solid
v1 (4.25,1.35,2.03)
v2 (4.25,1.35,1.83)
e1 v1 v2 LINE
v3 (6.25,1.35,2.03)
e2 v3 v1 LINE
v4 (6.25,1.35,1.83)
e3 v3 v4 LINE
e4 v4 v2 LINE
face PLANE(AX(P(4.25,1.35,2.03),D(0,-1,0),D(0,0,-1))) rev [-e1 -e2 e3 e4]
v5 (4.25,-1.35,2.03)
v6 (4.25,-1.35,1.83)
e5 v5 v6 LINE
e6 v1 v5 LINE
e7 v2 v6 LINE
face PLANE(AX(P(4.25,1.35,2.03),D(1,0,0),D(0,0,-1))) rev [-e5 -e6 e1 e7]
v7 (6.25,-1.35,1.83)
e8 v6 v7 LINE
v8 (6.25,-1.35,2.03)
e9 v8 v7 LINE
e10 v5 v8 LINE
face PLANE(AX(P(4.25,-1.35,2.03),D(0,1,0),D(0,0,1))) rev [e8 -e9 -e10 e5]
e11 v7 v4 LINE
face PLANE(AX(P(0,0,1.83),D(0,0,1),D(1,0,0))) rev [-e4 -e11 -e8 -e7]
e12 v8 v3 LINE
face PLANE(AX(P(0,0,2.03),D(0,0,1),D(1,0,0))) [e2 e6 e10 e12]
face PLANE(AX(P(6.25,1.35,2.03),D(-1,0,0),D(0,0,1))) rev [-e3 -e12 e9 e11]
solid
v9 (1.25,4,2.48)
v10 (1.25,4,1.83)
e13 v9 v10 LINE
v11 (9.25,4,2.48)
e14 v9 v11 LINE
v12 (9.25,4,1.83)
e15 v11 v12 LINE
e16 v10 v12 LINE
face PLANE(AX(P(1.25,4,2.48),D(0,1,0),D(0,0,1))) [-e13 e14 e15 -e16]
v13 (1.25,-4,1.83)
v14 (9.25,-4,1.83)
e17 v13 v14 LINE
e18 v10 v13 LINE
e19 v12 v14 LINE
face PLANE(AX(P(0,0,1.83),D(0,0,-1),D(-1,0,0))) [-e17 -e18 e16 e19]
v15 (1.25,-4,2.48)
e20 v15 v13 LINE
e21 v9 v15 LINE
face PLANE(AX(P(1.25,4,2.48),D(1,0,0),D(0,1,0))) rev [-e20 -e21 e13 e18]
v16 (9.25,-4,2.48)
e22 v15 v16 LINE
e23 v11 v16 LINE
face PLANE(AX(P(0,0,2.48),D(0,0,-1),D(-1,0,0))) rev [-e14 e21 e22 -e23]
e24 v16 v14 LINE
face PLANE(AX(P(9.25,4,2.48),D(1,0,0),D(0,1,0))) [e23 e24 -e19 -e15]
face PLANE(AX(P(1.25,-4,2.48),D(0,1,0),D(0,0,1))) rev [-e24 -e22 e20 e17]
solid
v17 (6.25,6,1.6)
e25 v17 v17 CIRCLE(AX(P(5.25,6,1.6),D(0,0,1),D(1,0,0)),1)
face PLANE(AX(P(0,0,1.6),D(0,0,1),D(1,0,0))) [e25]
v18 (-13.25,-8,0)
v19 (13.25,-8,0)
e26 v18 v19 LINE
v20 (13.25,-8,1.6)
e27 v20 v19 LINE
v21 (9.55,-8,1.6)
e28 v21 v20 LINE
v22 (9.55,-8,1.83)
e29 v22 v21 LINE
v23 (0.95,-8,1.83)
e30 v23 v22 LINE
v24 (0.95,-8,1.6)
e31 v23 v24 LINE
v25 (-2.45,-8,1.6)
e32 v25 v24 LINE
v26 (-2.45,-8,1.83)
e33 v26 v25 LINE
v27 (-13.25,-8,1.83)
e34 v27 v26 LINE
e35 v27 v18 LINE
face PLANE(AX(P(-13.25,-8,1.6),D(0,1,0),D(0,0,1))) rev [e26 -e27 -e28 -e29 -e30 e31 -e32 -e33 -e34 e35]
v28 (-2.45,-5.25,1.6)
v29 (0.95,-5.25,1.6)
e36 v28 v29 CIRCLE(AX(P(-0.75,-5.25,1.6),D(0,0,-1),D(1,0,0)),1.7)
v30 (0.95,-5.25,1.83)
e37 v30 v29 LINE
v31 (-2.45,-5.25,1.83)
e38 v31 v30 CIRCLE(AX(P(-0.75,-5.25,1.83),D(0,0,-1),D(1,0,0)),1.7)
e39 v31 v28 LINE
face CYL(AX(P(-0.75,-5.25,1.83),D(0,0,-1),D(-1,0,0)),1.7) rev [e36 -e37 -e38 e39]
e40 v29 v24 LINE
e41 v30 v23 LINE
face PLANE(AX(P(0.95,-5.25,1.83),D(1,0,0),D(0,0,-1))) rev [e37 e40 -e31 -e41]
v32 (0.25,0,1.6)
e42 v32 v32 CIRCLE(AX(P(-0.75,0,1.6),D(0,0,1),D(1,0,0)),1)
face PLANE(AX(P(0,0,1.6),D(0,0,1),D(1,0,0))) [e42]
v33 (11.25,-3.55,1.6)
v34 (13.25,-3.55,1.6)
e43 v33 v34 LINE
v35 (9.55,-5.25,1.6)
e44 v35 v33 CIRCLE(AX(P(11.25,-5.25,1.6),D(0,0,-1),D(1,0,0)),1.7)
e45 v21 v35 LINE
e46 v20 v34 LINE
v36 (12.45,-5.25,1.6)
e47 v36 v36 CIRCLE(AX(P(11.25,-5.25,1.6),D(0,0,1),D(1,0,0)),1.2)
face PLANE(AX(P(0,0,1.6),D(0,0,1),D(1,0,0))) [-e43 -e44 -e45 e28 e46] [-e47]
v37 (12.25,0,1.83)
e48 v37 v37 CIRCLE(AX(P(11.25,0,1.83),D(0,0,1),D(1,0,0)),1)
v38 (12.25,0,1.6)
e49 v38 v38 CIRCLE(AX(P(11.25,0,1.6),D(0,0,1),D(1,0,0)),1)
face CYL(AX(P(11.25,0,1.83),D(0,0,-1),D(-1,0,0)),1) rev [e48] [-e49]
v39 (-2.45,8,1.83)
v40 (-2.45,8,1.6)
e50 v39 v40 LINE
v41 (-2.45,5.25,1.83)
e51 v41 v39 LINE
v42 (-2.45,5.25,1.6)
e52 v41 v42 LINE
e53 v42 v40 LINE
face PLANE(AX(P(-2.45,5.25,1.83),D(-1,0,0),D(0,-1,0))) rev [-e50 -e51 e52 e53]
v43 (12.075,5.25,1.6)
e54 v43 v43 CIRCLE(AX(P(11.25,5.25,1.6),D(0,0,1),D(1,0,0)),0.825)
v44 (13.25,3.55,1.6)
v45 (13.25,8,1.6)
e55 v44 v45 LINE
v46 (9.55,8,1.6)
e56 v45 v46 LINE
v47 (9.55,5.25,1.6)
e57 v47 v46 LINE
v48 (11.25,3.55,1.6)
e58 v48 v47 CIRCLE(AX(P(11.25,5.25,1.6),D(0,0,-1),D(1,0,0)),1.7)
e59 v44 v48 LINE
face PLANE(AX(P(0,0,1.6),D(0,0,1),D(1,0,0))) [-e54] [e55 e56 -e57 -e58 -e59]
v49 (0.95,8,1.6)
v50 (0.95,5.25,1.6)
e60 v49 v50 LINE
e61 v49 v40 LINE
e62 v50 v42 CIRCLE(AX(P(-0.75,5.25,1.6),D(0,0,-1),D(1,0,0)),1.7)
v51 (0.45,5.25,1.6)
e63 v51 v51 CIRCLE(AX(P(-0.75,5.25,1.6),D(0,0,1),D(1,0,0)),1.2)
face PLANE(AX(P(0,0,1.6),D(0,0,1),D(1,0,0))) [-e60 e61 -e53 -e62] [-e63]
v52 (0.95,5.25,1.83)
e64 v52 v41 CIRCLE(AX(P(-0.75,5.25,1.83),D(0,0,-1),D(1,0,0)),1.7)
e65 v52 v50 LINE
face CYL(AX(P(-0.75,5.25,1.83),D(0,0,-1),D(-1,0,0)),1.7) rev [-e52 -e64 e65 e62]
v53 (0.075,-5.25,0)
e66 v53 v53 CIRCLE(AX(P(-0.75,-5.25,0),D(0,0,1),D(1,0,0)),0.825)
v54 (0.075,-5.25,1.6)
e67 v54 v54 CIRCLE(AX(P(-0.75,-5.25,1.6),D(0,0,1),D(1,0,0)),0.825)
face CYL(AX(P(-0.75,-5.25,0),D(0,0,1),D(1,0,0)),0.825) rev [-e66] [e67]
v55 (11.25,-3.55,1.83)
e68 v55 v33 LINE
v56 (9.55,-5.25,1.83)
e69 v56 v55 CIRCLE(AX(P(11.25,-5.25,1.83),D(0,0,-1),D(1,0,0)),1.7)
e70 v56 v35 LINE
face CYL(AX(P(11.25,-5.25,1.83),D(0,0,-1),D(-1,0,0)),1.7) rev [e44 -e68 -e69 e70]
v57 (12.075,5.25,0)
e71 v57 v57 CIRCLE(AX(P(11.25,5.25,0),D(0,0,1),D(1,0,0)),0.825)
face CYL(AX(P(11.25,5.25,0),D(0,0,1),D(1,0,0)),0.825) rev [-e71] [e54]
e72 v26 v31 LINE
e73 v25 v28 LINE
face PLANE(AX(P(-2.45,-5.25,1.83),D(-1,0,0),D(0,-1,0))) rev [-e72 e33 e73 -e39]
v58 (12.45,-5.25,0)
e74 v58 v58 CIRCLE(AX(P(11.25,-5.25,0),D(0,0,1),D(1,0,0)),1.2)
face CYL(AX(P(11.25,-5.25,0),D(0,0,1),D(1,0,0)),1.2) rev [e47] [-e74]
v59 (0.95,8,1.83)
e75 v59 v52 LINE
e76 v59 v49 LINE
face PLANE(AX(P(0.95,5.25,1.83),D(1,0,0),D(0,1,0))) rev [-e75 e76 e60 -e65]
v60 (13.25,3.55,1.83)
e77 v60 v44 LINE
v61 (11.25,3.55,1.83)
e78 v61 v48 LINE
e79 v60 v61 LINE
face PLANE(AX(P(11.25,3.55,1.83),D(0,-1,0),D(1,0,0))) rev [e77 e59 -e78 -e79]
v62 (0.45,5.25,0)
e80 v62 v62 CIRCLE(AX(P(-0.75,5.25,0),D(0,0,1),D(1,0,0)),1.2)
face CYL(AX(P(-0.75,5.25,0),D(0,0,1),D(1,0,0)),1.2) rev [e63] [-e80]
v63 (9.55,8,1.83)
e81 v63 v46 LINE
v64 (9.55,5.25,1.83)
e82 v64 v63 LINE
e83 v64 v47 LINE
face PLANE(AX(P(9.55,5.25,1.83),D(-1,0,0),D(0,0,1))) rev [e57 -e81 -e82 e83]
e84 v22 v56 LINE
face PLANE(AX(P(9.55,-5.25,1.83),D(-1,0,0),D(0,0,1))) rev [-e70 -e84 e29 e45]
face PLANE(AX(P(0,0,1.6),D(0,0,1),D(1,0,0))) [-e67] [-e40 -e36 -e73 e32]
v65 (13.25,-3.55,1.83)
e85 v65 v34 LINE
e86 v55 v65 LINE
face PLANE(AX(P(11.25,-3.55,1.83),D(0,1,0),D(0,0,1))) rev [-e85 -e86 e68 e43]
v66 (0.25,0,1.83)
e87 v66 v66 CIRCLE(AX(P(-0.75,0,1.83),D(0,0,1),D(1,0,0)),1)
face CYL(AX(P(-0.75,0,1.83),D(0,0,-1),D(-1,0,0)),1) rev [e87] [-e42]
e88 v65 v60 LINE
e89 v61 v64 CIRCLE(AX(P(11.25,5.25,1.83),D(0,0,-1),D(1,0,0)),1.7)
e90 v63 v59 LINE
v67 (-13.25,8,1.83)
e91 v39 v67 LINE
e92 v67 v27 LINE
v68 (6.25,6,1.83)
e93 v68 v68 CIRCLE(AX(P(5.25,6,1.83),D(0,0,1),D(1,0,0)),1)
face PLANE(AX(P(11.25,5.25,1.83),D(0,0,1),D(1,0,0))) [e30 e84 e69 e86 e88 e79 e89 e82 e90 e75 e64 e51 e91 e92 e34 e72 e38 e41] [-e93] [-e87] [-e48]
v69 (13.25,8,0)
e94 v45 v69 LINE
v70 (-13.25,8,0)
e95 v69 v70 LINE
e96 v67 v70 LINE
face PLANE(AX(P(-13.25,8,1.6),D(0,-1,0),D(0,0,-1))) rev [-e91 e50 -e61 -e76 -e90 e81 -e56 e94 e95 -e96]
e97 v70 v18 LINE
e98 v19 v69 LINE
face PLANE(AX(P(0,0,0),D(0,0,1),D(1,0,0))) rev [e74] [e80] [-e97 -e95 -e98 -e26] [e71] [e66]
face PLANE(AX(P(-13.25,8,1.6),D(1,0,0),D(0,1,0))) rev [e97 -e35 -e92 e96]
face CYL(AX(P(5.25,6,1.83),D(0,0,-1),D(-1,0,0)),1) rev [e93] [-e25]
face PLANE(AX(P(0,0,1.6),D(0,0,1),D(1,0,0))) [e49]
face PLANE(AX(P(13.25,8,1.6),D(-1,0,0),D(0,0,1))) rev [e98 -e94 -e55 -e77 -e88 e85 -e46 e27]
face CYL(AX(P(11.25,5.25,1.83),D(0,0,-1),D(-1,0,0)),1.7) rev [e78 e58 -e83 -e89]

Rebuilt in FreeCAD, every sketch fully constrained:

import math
import FreeCAD as App
import Part
import Sketcher
from FreeCAD import Vector


def add_polygon(sketch, points):
    """Adds a closed chain of lines whose ends are joined by coincident constraints."""
    first, n = sketch.GeometryCount, len(points)
    for a, b in zip(points, points[1:] + points[:1]):
        sketch.addGeometry(Part.LineSegment(App.Vector(*a, 0), App.Vector(*b, 0)), False)
    for i in range(n):
        sketch.addConstraint(Sketcher.Constraint("Coincident", first + i, 2, first + (i + 1) % n, 1))

doc = App.newDocument("Part")
body = doc.addObject("PartDesign::Body", "Body")

# Sketch on XY plane
sketch1 = body.newObject("Sketcher::SketchObject", "Sketch")
sketch1.AttachmentSupport = (doc.getObject("XY_Plane"), [""])
sketch1.MapMode = "FlatFace"
add_polygon(sketch1, [(-13, 8), (-13, -8), (13, -8), (13, 8)])  # lines 0-3
sketch1.addConstraint([
    Sketcher.Constraint("Vertical", 0),
    Sketcher.Constraint("Horizontal", 1),
    Sketcher.Constraint("Vertical", 2),
    Sketcher.Constraint("Horizontal", 3),
    Sketcher.Constraint("Symmetric", 0, 2, 2, 2, -1, 1),
    Sketcher.Constraint("DistanceY", 0, 2, 0, 1, 16.0),
    Sketcher.Constraint("DistanceX", 1, 1, 1, 2, 26.5),
])
pad1 = body.newObject("PartDesign::Pad", "Pad")
pad1.Profile = sketch1
pad1.Length = 1.6

# Sketch on XY plane
sketch2 = body.newObject("Sketcher::SketchObject", "Sketch001")
sketch2.AttachmentSupport = (doc.getObject("XY_Plane"), [""])
sketch2.MapMode = "FlatFace"
sketch2.AttachmentOffset = App.Placement(Vector(0, 0, 1.6), App.Rotation())
sketch2.addGeometry([
    Part.Circle(Vector(-0.8, 5.2, 0), Vector(0, 0, 1), 1.2),
    Part.Circle(Vector(11.2, 5.2, 0), Vector(0, 0, 1), 0.8),
    Part.Circle(Vector(11.2, -5.2, 0), Vector(0, 0, 1), 1.2),
    Part.Circle(Vector(-0.8, -5.2, 0), Vector(0, 0, 1), 0.8),
], False)
sketch2.addConstraint([
    Sketcher.Constraint("Equal", 0, 2),
    Sketcher.Constraint("Equal", 1, 3),
    Sketcher.Constraint("Symmetric", 1, 3, 2, 3, -1),
    Sketcher.Constraint("Symmetric", 0, 3, 3, 3, -1),
    Sketcher.Constraint("Horizontal", 0, 3, 1, 3),
    Sketcher.Constraint("Diameter", 0, 2.4),
    Sketcher.Constraint("Diameter", 1, 1.65),
    Sketcher.Constraint("DistanceX", 0, 3, 1, 3, 12.0),
    Sketcher.Constraint("DistanceY", 2, 3, 1, 3, 10.5),
    Sketcher.Constraint("DistanceX", 0, 3, -1, 1, 0.75),
])
pocket1 = body.newObject("PartDesign::Pocket", "Pocket")
pocket1.Profile = sketch2
pocket1.Type = "ThroughAll"

# Sketch on XY plane
sketch3 = body.newObject("Sketcher::SketchObject", "Sketch002")
sketch3.AttachmentSupport = (doc.getObject("XY_Plane"), [""])
sketch3.MapMode = "FlatFace"
sketch3.AttachmentOffset = App.Placement(Vector(0, 0, 1.6), App.Rotation())
sketch3.addGeometry([
    Part.LineSegment(Vector(13.2, 3.5, 0), Vector(11.2, 3.5, 0)),  # 0
    Part.ArcOfCircle(Part.Circle(Vector(11.2, 5.2, 0), Vector(0, 0, 1), 1.7), math.radians(180), math.radians(270)),  # 1
    Part.LineSegment(Vector(9.6, 5.2, 0), Vector(9.6, 8, 0)),  # 2
    Part.LineSegment(Vector(9.6, 8, 0), Vector(0.9, 8, 0)),  # 3
    Part.LineSegment(Vector(0.9, 8, 0), Vector(0.9, 5.2, 0)),  # 4
    Part.ArcOfCircle(Part.Circle(Vector(-0.8, 5.2, 0), Vector(0, 0, 1), 1.7), math.radians(180), math.radians(360)),  # 5
    Part.LineSegment(Vector(-2.5, 5.2, 0), Vector(-2.5, 8, 0)),  # 6
    Part.LineSegment(Vector(-2.5, 8, 0), Vector(-13.2, 8, 0)),  # 7
    Part.LineSegment(Vector(-13.2, 8, 0), Vector(-13.2, -8, 0)),  # 8
    Part.LineSegment(Vector(-13.2, -8, 0), Vector(-2.5, -8, 0)),  # 9
    Part.LineSegment(Vector(-2.5, -8, 0), Vector(-2.5, -5.2, 0)),  # 10
    Part.ArcOfCircle(Part.Circle(Vector(-0.8, -5.2, 0), Vector(0, 0, 1), 1.7), math.radians(0), math.radians(180)),  # 11
    Part.LineSegment(Vector(0.9, -5.2, 0), Vector(0.9, -8, 0)),  # 12
    Part.LineSegment(Vector(0.9, -8, 0), Vector(9.6, -8, 0)),  # 13
    Part.LineSegment(Vector(9.6, -8, 0), Vector(9.6, -5.2, 0)),  # 14
    Part.ArcOfCircle(Part.Circle(Vector(11.2, -5.2, 0), Vector(0, 0, 1), 1.7), math.radians(90), math.radians(180)),  # 15
    Part.LineSegment(Vector(11.2, -3.5, 0), Vector(13.2, -3.5, 0)),  # 16
    Part.LineSegment(Vector(13.2, -3.5, 0), Vector(13.2, 3.5, 0)),  # 17
    Part.Circle(Vector(11.2, 0, 0), Vector(0, 0, 1), 1),  # 18
    Part.Circle(Vector(-0.8, 0, 0), Vector(0, 0, 1), 1),  # 19
    Part.Circle(Vector(5.2, 6, 0), Vector(0, 0, 1), 1),  # 20
], False)
sketch3.addConstraint([
    Sketcher.Constraint("Tangent", 0, 2, 1, 2),
    Sketcher.Constraint("Tangent", 1, 1, 2, 1),
    Sketcher.Constraint("Coincident", 2, 2, 3, 1),
    Sketcher.Constraint("Coincident", 3, 2, 4, 1),
    Sketcher.Constraint("Tangent", 4, 2, 5, 2),
    Sketcher.Constraint("Tangent", 5, 1, 6, 1),
    Sketcher.Constraint("Coincident", 6, 2, 7, 1),
    Sketcher.Constraint("Coincident", 7, 2, 8, 1),
    Sketcher.Constraint("Coincident", 8, 2, 9, 1),
    Sketcher.Constraint("Coincident", 9, 2, 10, 1),
    Sketcher.Constraint("Tangent", 10, 2, 11, 2),
    Sketcher.Constraint("Tangent", 11, 1, 12, 1),
    Sketcher.Constraint("Coincident", 12, 2, 13, 1),
    Sketcher.Constraint("Coincident", 13, 2, 14, 1),
    Sketcher.Constraint("Tangent", 14, 2, 15, 2),
    Sketcher.Constraint("Tangent", 15, 1, 16, 1),
    Sketcher.Constraint("Coincident", 16, 2, 17, 1),
    Sketcher.Constraint("Coincident", 17, 2, 0, 1),
    Sketcher.Constraint("Horizontal", 0),
    Sketcher.Constraint("Vertical", 2),
    Sketcher.Constraint("Horizontal", 3),
    Sketcher.Constraint("Vertical", 4),
    Sketcher.Constraint("Vertical", 6),
    Sketcher.Constraint("Horizontal", 7),
    Sketcher.Constraint("Vertical", 8),
    Sketcher.Constraint("Horizontal", 9),
    Sketcher.Constraint("Vertical", 10),
    Sketcher.Constraint("Vertical", 12),
    Sketcher.Constraint("Horizontal", 13),
    Sketcher.Constraint("Vertical", 14),
    Sketcher.Constraint("Horizontal", 16),
    Sketcher.Constraint("Vertical", 17),
    Sketcher.Constraint("Equal", 1, 5),
    Sketcher.Constraint("Equal", 5, 11),
    Sketcher.Constraint("Equal", 11, 15),
    Sketcher.Constraint("Equal", 18, 19),
    Sketcher.Constraint("Equal", 19, 20),
    Sketcher.Constraint("Symmetric", 5, 3, 11, 3, -1),
    Sketcher.Constraint("Symmetric", 1, 3, 15, 3, -1),
    Sketcher.Constraint("PointOnObject", 18, 3, -1),
    Sketcher.Constraint("PointOnObject", 19, 3, -1),
    Sketcher.Constraint("Horizontal", 1, 3, 5, 3),
    Sketcher.Constraint("Horizontal", 3, 2, 6, 2),
    Sketcher.Constraint("Horizontal", 9, 2, 12, 2),
    Sketcher.Constraint("Vertical", 15, 3, 18, 3),
    Sketcher.Constraint("Vertical", 11, 3, 19, 3),
    Sketcher.Constraint("Equal", 6, 10),
    Sketcher.Constraint("Diameter", 18, 2.0),
    Sketcher.Constraint("Radius", 1, 1.7),
    Sketcher.Constraint("DistanceX", 0, 2, 0, 1, 2.0),
    Sketcher.Constraint("DistanceY", 8, 2, 8, 1, 16.0),
    Sketcher.Constraint("DistanceX", 3, 2, 3, 1, 8.6),
    Sketcher.Constraint("DistanceX", 7, 2, 7, 1, 10.8),
    Sketcher.Constraint("DistanceY", 17, 1, 17, 2, 7.1),
    Sketcher.Constraint("DistanceY", -1, 1, 20, 3, 6.0),
    Sketcher.Constraint("DistanceX", 20, 3, 1, 3, 6.0),
    Sketcher.Constraint("DistanceX", -1, 1, 1, 3, 11.25),
])
pad2 = body.newObject("PartDesign::Pad", "Pad001")
pad2.Profile = sketch3
pad2.Length = 0.23
body2 = doc.addObject("PartDesign::Body", "Body001")

# Sketch on XY plane
sketch4 = body2.newObject("Sketcher::SketchObject", "Sketch003")
sketch4.AttachmentSupport = (doc.getObject("XY_Plane001"), [""])
sketch4.MapMode = "FlatFace"
sketch4.AttachmentOffset = App.Placement(Vector(0, 0, 1.83), App.Rotation())
add_polygon(sketch4, [(4.2, 1.4), (4.2, -1.4), (6.2, -1.4), (6.2, 1.4)])  # lines 0-3
sketch4.addConstraint([
    Sketcher.Constraint("Vertical", 0),
    Sketcher.Constraint("Horizontal", 1),
    Sketcher.Constraint("Vertical", 2),
    Sketcher.Constraint("Horizontal", 3),
    Sketcher.Constraint("DistanceX", 1, 1, 1, 2, 2.0),
    Sketcher.Constraint("DistanceY", 0, 2, 0, 1, 2.7),
    Sketcher.Constraint("DistanceX", -1, 1, 0, 2, 4.25),
    Sketcher.Constraint("DistanceY", 0, 2, -1, 1, 1.35),
])
pad3 = body2.newObject("PartDesign::Pad", "Pad002")
pad3.Profile = sketch4
pad3.Length = 0.2
body3 = doc.addObject("PartDesign::Body", "Body002")

# Sketch on XY plane
sketch5 = body3.newObject("Sketcher::SketchObject", "Sketch004")
sketch5.AttachmentSupport = (doc.getObject("XY_Plane002"), [""])
sketch5.MapMode = "FlatFace"
sketch5.AttachmentOffset = App.Placement(Vector(0, 0, 1.83), App.Rotation())
add_polygon(sketch5, [(1, 4), (1, -4), (9, -4), (9, 4)])  # lines 0-3
sketch5.addConstraint([
    Sketcher.Constraint("Vertical", 0),
    Sketcher.Constraint("Horizontal", 1),
    Sketcher.Constraint("Vertical", 2),
    Sketcher.Constraint("Horizontal", 3),
    Sketcher.Constraint("Equal", 3, 0),
    Sketcher.Constraint("DistanceX", 1, 1, 1, 2, 8.0),
    Sketcher.Constraint("DistanceY", 0, 2, -1, 1, 4.0),
    Sketcher.Constraint("DistanceX", -1, 1, 0, 2, 1.25),
])
pad4 = body3.newObject("PartDesign::Pad", "Pad003")
pad4.Profile = sketch5
pad4.Length = 0.65

doc.recompute()
